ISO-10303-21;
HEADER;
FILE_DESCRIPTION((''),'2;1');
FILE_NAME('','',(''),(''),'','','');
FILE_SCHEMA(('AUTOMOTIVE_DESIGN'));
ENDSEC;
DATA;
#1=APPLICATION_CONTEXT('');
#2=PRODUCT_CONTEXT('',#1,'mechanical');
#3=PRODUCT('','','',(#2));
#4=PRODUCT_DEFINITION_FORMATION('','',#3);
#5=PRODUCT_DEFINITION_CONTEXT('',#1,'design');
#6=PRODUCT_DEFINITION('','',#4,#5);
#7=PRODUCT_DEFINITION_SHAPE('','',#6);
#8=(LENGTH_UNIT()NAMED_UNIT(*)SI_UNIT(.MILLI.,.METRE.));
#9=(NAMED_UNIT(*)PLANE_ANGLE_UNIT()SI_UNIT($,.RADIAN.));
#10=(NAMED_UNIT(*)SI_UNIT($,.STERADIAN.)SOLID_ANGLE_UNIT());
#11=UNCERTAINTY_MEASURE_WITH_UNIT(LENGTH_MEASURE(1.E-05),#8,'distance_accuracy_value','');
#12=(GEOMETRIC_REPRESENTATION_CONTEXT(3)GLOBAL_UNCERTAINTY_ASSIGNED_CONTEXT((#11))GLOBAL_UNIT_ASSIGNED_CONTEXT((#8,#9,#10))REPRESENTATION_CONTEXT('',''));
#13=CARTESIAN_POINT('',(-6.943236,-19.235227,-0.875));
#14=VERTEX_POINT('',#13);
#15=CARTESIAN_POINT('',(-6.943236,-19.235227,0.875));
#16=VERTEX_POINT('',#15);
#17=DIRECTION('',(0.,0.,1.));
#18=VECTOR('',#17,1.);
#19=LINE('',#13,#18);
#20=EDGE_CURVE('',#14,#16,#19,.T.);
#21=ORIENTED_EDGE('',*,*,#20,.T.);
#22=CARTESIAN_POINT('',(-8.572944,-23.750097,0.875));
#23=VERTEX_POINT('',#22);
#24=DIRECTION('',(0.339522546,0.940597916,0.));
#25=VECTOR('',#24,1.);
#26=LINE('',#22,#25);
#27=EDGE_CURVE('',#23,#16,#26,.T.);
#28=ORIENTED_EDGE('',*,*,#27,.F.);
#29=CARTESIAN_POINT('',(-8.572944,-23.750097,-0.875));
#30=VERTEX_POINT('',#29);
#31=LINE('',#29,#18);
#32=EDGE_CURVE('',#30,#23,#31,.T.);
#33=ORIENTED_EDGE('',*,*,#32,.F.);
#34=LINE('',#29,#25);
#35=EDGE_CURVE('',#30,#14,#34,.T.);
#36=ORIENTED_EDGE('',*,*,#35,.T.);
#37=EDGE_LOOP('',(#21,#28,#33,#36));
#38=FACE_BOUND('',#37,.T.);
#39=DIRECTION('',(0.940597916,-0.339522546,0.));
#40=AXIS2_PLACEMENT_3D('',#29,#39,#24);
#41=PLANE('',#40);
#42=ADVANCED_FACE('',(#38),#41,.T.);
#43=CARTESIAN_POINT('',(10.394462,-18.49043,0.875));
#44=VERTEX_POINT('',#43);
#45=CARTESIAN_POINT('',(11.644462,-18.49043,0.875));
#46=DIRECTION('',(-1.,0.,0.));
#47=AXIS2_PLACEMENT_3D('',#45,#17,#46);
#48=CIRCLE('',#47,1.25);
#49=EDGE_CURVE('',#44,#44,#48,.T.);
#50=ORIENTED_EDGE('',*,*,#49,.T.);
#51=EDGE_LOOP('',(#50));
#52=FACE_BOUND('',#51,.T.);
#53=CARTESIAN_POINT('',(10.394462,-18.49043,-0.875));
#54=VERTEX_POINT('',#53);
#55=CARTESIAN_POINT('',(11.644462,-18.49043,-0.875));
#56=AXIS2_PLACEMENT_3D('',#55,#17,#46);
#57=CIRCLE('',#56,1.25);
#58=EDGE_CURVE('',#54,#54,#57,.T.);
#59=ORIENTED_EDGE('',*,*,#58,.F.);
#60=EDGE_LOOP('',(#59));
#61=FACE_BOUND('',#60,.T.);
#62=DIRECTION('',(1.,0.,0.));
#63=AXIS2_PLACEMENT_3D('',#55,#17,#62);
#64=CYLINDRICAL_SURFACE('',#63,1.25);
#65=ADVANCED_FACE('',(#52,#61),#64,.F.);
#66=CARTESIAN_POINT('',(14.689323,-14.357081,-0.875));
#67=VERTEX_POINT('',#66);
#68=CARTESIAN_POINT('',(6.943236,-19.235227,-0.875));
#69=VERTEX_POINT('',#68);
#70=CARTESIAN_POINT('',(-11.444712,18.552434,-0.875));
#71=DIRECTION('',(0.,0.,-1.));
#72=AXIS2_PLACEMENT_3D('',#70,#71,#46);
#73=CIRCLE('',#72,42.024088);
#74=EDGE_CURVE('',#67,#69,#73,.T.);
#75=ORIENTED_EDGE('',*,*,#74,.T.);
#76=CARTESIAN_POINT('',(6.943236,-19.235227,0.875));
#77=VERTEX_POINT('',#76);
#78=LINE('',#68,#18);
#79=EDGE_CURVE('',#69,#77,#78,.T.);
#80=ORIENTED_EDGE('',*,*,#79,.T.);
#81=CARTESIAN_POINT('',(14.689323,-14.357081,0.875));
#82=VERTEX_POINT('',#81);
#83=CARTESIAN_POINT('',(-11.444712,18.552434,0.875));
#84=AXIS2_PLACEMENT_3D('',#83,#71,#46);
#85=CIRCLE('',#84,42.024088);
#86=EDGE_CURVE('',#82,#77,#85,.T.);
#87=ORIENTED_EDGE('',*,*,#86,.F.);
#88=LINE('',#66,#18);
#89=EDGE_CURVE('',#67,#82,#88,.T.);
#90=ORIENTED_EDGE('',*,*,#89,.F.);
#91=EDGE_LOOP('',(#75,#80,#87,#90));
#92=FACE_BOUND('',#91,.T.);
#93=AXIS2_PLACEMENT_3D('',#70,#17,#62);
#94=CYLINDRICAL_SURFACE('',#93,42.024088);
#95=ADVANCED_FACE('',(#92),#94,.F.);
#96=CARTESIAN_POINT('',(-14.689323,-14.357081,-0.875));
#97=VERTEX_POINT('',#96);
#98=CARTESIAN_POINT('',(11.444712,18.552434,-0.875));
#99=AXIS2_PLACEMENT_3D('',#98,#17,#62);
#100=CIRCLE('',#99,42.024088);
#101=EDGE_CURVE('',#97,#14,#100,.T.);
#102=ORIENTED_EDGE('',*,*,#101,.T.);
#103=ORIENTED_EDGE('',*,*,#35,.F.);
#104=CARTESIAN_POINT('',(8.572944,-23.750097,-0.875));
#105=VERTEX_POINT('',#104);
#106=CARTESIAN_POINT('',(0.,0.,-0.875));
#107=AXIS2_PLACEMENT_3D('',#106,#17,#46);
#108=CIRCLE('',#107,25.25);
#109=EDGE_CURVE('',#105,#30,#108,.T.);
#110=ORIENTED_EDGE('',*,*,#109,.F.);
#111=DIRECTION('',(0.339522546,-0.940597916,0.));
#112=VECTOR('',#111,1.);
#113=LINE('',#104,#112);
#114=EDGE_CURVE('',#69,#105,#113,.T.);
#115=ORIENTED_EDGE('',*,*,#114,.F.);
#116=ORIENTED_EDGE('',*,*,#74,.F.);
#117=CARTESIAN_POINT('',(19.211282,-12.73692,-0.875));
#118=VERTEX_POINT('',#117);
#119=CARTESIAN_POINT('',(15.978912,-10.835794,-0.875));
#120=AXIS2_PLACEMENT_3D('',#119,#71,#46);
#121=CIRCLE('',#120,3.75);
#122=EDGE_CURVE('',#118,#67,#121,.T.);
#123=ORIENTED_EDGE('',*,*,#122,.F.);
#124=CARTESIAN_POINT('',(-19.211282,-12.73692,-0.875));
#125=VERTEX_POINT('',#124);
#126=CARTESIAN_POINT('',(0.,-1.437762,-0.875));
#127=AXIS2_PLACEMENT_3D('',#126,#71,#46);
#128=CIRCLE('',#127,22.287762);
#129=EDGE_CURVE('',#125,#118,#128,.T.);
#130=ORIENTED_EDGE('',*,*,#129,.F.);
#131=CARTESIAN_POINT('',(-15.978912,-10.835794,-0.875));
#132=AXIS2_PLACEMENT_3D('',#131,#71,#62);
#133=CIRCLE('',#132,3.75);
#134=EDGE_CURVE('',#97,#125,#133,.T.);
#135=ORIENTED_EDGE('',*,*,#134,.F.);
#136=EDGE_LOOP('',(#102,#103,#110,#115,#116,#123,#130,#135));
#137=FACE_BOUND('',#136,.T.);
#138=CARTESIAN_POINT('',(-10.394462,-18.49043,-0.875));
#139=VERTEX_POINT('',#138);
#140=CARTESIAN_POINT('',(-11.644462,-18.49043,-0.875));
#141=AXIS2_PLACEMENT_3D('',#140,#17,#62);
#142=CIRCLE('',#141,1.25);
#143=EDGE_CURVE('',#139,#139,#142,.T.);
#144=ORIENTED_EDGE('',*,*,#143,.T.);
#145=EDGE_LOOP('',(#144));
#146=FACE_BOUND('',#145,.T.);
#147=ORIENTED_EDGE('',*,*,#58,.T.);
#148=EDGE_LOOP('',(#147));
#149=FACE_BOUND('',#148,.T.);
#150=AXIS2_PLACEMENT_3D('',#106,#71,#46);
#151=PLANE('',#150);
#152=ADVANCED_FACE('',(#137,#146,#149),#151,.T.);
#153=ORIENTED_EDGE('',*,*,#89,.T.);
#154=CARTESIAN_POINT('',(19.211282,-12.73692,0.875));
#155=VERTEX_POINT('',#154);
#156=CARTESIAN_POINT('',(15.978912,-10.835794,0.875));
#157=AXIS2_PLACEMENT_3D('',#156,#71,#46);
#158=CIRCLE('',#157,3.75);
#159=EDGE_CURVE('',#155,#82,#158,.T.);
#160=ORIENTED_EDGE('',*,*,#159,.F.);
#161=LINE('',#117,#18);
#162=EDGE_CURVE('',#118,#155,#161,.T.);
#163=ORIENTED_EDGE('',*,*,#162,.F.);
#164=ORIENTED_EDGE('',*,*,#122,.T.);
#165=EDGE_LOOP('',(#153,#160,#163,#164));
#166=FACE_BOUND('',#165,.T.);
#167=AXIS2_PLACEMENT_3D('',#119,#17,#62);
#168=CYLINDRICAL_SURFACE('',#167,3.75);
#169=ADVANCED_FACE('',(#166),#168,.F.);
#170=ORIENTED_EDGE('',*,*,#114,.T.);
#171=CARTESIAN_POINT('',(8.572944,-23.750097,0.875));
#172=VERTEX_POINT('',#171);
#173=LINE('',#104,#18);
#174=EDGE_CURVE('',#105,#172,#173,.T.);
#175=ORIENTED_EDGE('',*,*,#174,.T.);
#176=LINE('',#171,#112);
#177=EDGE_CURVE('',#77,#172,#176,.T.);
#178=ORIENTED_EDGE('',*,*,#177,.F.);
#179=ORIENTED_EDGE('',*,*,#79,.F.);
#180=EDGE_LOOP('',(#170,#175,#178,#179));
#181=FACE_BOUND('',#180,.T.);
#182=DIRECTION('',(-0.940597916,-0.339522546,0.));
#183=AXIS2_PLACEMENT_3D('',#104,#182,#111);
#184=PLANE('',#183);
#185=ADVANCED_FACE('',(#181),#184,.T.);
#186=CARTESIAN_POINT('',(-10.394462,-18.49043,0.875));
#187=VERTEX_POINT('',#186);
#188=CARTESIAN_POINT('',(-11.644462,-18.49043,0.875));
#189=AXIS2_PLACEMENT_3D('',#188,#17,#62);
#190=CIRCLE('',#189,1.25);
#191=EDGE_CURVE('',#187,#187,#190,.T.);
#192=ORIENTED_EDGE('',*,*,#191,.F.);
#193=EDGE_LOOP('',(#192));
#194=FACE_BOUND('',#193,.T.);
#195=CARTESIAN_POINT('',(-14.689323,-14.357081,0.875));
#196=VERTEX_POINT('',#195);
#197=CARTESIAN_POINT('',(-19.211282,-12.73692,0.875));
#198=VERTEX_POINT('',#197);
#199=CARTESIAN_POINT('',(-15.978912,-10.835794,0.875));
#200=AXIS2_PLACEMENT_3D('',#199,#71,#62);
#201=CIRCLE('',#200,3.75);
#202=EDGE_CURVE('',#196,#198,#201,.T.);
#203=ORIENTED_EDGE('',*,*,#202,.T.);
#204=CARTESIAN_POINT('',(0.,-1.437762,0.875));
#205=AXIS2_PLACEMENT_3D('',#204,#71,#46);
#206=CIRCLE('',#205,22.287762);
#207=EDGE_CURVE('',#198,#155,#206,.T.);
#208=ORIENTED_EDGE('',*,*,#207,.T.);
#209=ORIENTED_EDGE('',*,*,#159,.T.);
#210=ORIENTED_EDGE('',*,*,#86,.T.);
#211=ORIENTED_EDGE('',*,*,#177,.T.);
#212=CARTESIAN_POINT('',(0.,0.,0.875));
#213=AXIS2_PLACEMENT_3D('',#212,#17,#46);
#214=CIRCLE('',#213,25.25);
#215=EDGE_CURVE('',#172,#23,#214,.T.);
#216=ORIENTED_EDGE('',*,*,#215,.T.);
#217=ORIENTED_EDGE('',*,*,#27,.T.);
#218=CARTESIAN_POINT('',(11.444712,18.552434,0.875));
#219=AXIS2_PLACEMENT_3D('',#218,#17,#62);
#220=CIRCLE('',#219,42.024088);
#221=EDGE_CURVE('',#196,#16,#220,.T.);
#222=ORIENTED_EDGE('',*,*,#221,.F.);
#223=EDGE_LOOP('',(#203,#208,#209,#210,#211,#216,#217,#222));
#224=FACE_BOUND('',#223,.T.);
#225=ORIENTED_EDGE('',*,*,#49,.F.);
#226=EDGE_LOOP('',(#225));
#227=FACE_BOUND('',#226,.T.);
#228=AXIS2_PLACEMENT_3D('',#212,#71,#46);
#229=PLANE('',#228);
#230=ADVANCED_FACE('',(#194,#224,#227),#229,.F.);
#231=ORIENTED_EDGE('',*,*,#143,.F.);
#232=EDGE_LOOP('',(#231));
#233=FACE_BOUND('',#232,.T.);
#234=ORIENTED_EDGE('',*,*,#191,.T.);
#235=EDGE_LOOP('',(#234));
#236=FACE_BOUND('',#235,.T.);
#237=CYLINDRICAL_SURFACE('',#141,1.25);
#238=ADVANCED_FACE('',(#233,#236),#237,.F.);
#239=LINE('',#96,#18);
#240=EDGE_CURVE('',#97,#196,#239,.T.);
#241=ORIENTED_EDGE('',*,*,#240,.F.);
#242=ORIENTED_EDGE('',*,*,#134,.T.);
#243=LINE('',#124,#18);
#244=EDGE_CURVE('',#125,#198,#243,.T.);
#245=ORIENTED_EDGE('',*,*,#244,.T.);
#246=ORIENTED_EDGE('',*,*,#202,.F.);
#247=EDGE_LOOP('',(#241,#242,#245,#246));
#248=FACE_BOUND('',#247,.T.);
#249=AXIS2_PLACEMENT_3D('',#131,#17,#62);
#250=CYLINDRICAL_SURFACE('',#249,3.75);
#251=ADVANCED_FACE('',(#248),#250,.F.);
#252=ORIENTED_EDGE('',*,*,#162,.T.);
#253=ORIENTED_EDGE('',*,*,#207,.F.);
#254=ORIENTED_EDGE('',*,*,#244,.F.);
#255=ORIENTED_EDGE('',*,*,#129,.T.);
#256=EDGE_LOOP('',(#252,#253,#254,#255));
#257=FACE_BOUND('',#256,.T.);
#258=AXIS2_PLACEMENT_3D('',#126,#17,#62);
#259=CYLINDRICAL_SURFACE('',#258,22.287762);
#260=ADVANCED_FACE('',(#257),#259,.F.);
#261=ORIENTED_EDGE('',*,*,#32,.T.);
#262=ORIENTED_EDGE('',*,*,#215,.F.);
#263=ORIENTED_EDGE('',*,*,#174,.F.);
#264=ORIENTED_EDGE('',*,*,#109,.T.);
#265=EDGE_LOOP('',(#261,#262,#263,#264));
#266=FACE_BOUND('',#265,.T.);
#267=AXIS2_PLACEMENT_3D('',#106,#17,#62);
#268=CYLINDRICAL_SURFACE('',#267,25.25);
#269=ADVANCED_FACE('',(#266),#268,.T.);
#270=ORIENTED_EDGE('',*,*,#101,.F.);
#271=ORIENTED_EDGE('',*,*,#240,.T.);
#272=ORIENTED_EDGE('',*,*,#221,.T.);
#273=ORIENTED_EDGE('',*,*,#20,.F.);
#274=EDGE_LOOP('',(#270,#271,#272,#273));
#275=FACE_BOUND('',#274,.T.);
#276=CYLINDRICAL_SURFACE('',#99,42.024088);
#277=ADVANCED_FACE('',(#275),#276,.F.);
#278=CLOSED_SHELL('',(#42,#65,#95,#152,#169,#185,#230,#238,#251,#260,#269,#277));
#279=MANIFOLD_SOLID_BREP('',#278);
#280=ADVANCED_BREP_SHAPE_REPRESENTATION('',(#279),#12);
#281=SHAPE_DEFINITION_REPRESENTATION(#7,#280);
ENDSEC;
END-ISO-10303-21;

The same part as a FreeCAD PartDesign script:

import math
import FreeCAD as App
import Part
import Sketcher
from FreeCAD import Vector
Q = App.Units.Quantity

doc = App.newDocument("Part")
body = doc.addObject("PartDesign::Body", "Body")

# Sketch on XY plane
sketch1 = doc.addObject("Sketcher::SketchObject", "Sketch")
body.addObject(sketch1)
sketch1.AttachmentSupport = (doc.XY_Plane, [""])
sketch1.MapMode = "FlatFace"
sketch1.addGeometry(Part.LineSegment(Vector(-8.6, -23.8, 0), Vector(-6.9, -19.2, 0)), False)
sketch1.addGeometry(Part.LineSegment(Vector(-6.9, -19.2, 0), Vector(-14.7, -14.4, 0)), False)
sketch1.addGeometry(Part.ArcOfCircle(Part.Circle(Vector(-16, -10.8, 0), Vector(0, 0, 1), 3.7), math.radians(-150), math.radians(-70)), False)
sketch1.addGeometry(Part.ArcOfCircle(Part.Circle(Vector(0, -1.4, 0), Vector(0, 0, 1), 22.3), math.radians(-30), math.radians(210)), False)
sketch1.addGeometry(Part.ArcOfCircle(Part.Circle(Vector(16, -10.8, 0), Vector(0, 0, 1), 3.7), math.radians(-110), math.radians(-30)), False)
sketch1.addGeometry(Part.LineSegment(Vector(14.7, -14.4, 0), Vector(6.9, -19.2, 0)), False)
sketch1.addGeometry(Part.LineSegment(Vector(6.9, -19.2, 0), Vector(8.6, -23.8, 0)), False)
sketch1.addGeometry(Part.ArcOfCircle(Part.Circle(Vector(0, 0, 0), Vector(0, 0, 1), 25.2), math.radians(-70), math.radians(250)), False)
sketch1.addGeometry(Part.Circle(Vector(-11.6, -18.5, 0), Vector(0, 0, 1), 1.2), False)
sketch1.addGeometry(Part.Circle(Vector(11.6, -18.5, 0), Vector(0, 0, 1), 1.2), False)
sketch1.addConstraint(Sketcher.Constraint("Coincident", 0, 2, 1, 1))
sketch1.addConstraint(Sketcher.Constraint("Coincident", 1, 2, 2, 2))
sketch1.addConstraint(Sketcher.Constraint("Tangent", 2, 1, 3, 2))
sketch1.addConstraint(Sketcher.Constraint("Tangent", 3, 1, 4, 2))
sketch1.addConstraint(Sketcher.Constraint("Coincident", 4, 1, 5, 1))
sketch1.addConstraint(Sketcher.Constraint("Coincident", 5, 2, 6, 1))
sketch1.addConstraint(Sketcher.Constraint("Coincident", 6, 2, 7, 1))
sketch1.addConstraint(Sketcher.Constraint("Coincident", 7, 2, 0, 1))
sketch1.addConstraint(Sketcher.Constraint("Coincident", 7, 3, -1, 1))
sketch1.addConstraint(Sketcher.Constraint("Equal", 2, 4))
sketch1.addConstraint(Sketcher.Constraint("Equal", 8, 9))
sketch1.addConstraint(Sketcher.Constraint("Symmetric", 2, 3, 4, 3, -2))
sketch1.addConstraint(Sketcher.Constraint("Symmetric", 8, 3, 9, 3, -2))
sketch1.addConstraint(Sketcher.Constraint("Symmetric", 0, 2, 5, 2, -2))
sketch1.addConstraint(Sketcher.Constraint("Horizontal", 1, 2, 4, 1))
sketch1.addConstraint(Sketcher.Constraint("Horizontal", 6, 2, 7, 2))
sketch1.addConstraint(Sketcher.Constraint("Diameter", 8, Q("2.5 mm")))
sketch1.addConstraint(Sketcher.Constraint("Radius", 2, Q("3.75 mm")))
sketch1.addConstraint(Sketcher.Constraint("Radius", 7, Q("25.25 mm")))
sketch1.addConstraint(Sketcher.Constraint("Distance", 0, Q("4.8 mm")))
sketch1.addConstraint(Sketcher.Constraint("Radius", 3, Q("22.287762 mm")))
sketch1.addConstraint(Sketcher.Constraint("DistanceX", 0, 2, 9, 3, Q("18.587698 mm")))
sketch1.addConstraint(Sketcher.Constraint("DistanceX", 2, 3, -1, 1, Q("15.978912 mm")))
sketch1.addConstraint(Sketcher.Constraint("DistanceY", 8, 3, -1, 1, Q("18.49043 mm")))
sketch1.addConstraint(Sketcher.Constraint("DistanceY", 1, 2, -1, 1, Q("14.357081 mm")))
sketch1.addConstraint(Sketcher.Constraint("DistanceY", 2, 1, -1, 1, Q("12.73692 mm")))
sketch1.addConstraint(Sketcher.Constraint("DistanceX", 2, 3, 8, 3, Q("4.334449 mm")))
sketch1.addConstraint(Sketcher.Constraint("DistanceX", 5, 2, 6, 2, Q("1.629708 mm")))
pad1 = doc.addObject("PartDesign::Pad", "Pad")
body.addObject(pad1)
pad1.Profile = sketch1
pad1.Type = "TwoLengths"
pad1.Length = 0.875
pad1.Length2 = 0.875

# Sketch on XY plane
sketch2 = doc.addObject("Sketcher::SketchObject", "Sketch001")
body.addObject(sketch2)
sketch2.AttachmentSupport = (doc.XY_Plane, [""])
sketch2.MapMode = "FlatFace"
sketch2.addGeometry(Part.LineSegment(Vector(0, 0, 0), Vector(-15, -14, 0)), False)
sketch2.addGeometry(Part.ArcOfCircle(Part.Circle(Vector(11, 19, 0), Vector(0, 0, 1), 42), math.radians(-128.45), math.radians(-115.95)), False)
sketch2.addGeometry(Part.LineSegment(Vector(-7, -19, 0), Vector(0, 0, 0)), False)
sketch2.addConstraint(Sketcher.Constraint("Coincident", 0, 2, 1, 1))
sketch2.addConstraint(Sketcher.Constraint("Coincident", 1, 2, 2, 1))
sketch2.addConstraint(Sketcher.Constraint("Coincident", 2, 2, 0, 1))
sketch2.addConstraint(Sketcher.Constraint("Coincident", 2, 2, -1, 1))
sketch2.addConstraint(Sketcher.Constraint("Distance", 2, Q("20.45 mm")))
sketch2.addConstraint(Sketcher.Constraint("Radius", 1, Q("42.024088 mm")))
sketch2.addConstraint(Sketcher.Constraint("DistanceX", -1, 1, 1, 3, Q("11.444712 mm")))
sketch2.addConstraint(Sketcher.Constraint("DistanceY", 0, 2, -1, 1, Q("14.357081 mm")))
sketch2.addConstraint(Sketcher.Constraint("DistanceY", 1, 2, 1, 3, Q("37.787661 mm")))
pocket1 = doc.addObject("PartDesign::Pocket", "Pocket")
body.addObject(pocket1)
pocket1.Profile = sketch2
pocket1.Length = 73.439222
pocket1.Midplane = True
doc.recompute()

mirrored = doc.addObject("PartDesign::Mirrored", "Mirrored")
body.addObject(mirrored)
mirrored.Originals = [pocket1]
mirrored.MirrorPlane = (doc.YZ_Plane, [""])
body.Tip = mirrored

doc.recompute()
